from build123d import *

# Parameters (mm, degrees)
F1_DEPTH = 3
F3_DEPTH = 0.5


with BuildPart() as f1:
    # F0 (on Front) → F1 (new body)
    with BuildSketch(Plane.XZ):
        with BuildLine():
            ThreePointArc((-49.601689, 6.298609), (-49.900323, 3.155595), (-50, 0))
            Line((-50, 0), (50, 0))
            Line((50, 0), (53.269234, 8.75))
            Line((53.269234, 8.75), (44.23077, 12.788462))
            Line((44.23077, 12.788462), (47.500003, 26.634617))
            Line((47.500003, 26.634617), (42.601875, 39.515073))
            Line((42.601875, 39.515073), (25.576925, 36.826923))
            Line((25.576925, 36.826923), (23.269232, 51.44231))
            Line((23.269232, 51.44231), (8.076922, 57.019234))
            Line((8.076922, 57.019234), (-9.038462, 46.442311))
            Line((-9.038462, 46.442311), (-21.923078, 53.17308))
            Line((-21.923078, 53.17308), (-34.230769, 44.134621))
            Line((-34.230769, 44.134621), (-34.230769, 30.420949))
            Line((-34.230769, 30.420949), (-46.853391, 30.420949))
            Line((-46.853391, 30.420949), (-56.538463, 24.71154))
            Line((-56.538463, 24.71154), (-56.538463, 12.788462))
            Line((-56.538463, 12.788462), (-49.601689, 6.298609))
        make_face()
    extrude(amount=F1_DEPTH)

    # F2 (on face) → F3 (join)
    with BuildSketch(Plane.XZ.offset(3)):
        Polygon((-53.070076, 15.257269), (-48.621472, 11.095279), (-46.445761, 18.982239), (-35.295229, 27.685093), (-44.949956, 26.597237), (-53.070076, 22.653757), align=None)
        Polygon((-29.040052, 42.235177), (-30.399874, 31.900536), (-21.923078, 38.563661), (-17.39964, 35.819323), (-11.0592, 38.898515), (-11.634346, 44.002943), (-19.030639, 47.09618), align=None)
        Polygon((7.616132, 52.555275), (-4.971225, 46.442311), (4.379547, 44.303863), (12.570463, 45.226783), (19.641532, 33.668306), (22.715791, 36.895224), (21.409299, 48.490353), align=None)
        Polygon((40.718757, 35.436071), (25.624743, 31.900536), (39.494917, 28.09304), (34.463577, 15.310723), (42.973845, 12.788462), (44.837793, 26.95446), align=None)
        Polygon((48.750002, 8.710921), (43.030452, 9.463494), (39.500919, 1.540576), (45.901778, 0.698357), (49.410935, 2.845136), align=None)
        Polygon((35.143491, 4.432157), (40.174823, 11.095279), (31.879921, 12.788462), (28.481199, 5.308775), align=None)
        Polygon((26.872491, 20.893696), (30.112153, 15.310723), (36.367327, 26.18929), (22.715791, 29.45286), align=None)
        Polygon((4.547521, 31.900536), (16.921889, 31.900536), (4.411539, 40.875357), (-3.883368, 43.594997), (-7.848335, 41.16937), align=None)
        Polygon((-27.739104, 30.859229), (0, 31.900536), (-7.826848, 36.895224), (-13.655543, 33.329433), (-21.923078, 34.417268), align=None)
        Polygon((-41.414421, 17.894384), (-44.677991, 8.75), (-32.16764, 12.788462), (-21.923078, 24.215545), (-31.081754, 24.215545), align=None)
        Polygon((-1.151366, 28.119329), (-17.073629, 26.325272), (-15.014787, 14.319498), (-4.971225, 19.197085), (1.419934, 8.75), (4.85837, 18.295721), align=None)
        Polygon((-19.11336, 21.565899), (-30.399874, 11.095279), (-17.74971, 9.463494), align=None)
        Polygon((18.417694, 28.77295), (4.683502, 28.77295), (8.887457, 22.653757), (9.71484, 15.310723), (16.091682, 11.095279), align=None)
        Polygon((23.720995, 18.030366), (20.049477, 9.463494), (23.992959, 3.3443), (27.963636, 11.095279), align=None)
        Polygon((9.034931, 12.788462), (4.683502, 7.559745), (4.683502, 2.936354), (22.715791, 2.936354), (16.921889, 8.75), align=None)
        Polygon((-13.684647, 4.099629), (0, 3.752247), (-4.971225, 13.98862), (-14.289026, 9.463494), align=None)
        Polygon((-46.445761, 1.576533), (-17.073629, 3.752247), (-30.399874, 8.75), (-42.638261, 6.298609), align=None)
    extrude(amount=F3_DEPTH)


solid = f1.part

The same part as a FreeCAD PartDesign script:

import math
import FreeCAD as App
import Part
import Sketcher
Q = App.Units.Quantity


def add_polygon(sketch, points):
    """Adds a closed chain of lines whose ends are joined by coincident constraints."""
    first, n = sketch.GeometryCount, len(points)
    for a, b in zip(points, points[1:] + points[:1]):
        sketch.addGeometry(Part.LineSegment(App.Vector(*a, 0), App.Vector(*b, 0)), False)
    for i in range(n):
        sketch.addConstraint(Sketcher.Constraint("Coincident", first + i, 2, first + (i + 1) % n, 1))

doc = App.newDocument("Part")
params = doc.addObject("Spreadsheet::Sheet", "Params")
for row, (alias, value) in enumerate([
    ("sketch1_width", "100 mm"),
    ("pad1_length", "3 mm"),
    ("pad2_length", "0.5 mm"),
], start=1):
    params.set(f"A{row}", alias)
    params.set(f"B{row}", "=" + value)
    params.setAlias(f"B{row}", alias)

body = doc.addObject("PartDesign::Body", "Body")

sketch1 = body.newObject("Sketcher::SketchObject", "Sketch")
sketch1.AttachmentSupport = (doc.getObject("XZ_Plane"), [""])
sketch1.MapMode = "FlatFace"
sketch1.addGeometry(Part.ArcOfCircle(Part.Circle(App.Vector(-0.000009, 0.000003, 0), App.Vector(0, 0, 1), 49.999991), math.radians(172.7631), math.radians(180.000003)), False)
sketch1.addGeometry(Part.LineSegment(App.Vector(-50, 0, 0), App.Vector(50, 0, 0)), False)
sketch1.addGeometry(Part.LineSegment(App.Vector(50, 0, 0), App.Vector(53.269234, 8.75, 0)), False)
sketch1.addGeometry(Part.LineSegment(App.Vector(53.269234, 8.75, 0), App.Vector(44.23077, 12.788462, 0)), False)
sketch1.addGeometry(Part.LineSegment(App.Vector(44.23077, 12.788462, 0), App.Vector(47.500003, 26.634617, 0)), False)
sketch1.addGeometry(Part.LineSegment(App.Vector(47.500003, 26.634617, 0), App.Vector(42.601875, 39.515073, 0)), False)
sketch1.addGeometry(Part.LineSegment(App.Vector(42.601875, 39.515073, 0), App.Vector(25.576925, 36.826923, 0)), False)
sketch1.addGeometry(Part.LineSegment(App.Vector(25.576925, 36.826923, 0), App.Vector(23.269232, 51.44231, 0)), False)
sketch1.addGeometry(Part.LineSegment(App.Vector(23.269232, 51.44231, 0), App.Vector(8.076922, 57.019234, 0)), False)
sketch1.addGeometry(Part.LineSegment(App.Vector(8.076922, 57.019234, 0), App.Vector(-9.038462, 46.442311, 0)), False)
sketch1.addGeometry(Part.LineSegment(App.Vector(-9.038462, 46.442311, 0), App.Vector(-21.923078, 53.17308, 0)), False)
sketch1.addGeometry(Part.LineSegment(App.Vector(-21.923078, 53.17308, 0), App.Vector(-34.230769, 44.134621, 0)), False)
sketch1.addGeometry(Part.LineSegment(App.Vector(-34.230769, 44.134621, 0), App.Vector(-34.230769, 30.420949, 0)), False)
sketch1.addGeometry(Part.LineSegment(App.Vector(-34.230769, 30.420949, 0), App.Vector(-46.853391, 30.420949, 0)), False)
sketch1.addGeometry(Part.LineSegment(App.Vector(-46.853391, 30.420949, 0), App.Vector(-56.538463, 24.71154, 0)), False)
sketch1.addGeometry(Part.LineSegment(App.Vector(-56.538463, 24.71154, 0), App.Vector(-56.538463, 12.788462, 0)), False)
sketch1.addGeometry(Part.LineSegment(App.Vector(-56.538463, 12.788462, 0), App.Vector(-49.601689, 6.298609, 0)), False)
sketch1.addConstraint(Sketcher.Constraint("Coincident", 0, 2, 1, 1))
sketch1.addConstraint(Sketcher.Constraint("Coincident", 1, 2, 2, 1))
sketch1.addConstraint(Sketcher.Constraint("Coincident", 2, 2, 3, 1))
sketch1.addConstraint(Sketcher.Constraint("Coincident", 3, 2, 4, 1))
sketch1.addConstraint(Sketcher.Constraint("Coincident", 4, 2, 5, 1))
sketch1.addConstraint(Sketcher.Constraint("Coincident", 5, 2, 6, 1))
sketch1.addConstraint(Sketcher.Constraint("Coincident", 6, 2, 7, 1))
sketch1.addConstraint(Sketcher.Constraint("Coincident", 7, 2, 8, 1))
sketch1.addConstraint(Sketcher.Constraint("Coincident", 8, 2, 9, 1))
sketch1.addConstraint(Sketcher.Constraint("Coincident", 9, 2, 10, 1))
sketch1.addConstraint(Sketcher.Constraint("Coincident", 10, 2, 11, 1))
sketch1.addConstraint(Sketcher.Constraint("Coincident", 11, 2, 12, 1))
sketch1.addConstraint(Sketcher.Constraint("Coincident", 12, 2, 13, 1))
sketch1.addConstraint(Sketcher.Constraint("Coincident", 13, 2, 14, 1))
sketch1.addConstraint(Sketcher.Constraint("Coincident", 14, 2, 15, 1))
sketch1.addConstraint(Sketcher.Constraint("Coincident", 15, 2, 16, 1))
sketch1.addConstraint(Sketcher.Constraint("Coincident", 16, 2, 0, 1))
sketch1.addConstraint(Sketcher.Constraint("Horizontal", 1))
sketch1.addConstraint(Sketcher.Constraint("Vertical", 12))
sketch1.addConstraint(Sketcher.Constraint("Horizontal", 13))
sketch1.addConstraint(Sketcher.Constraint("Vertical", 15))
sketch1.addConstraint(Sketcher.Constraint("Coincident", 0, 3, -1, 1))
sketch1.addConstraint(Sketcher.Constraint("Symmetric", 0, 2, 1, 2, -1, 1))
sketch1.addConstraint(Sketcher.Constraint("Perpendicular", 6, 7))
sketch1.addConstraint(Sketcher.Constraint("Horizontal", 3, 2, 15, 2))
sketch1.addConstraint(Sketcher.Constraint("DistanceX", 1, 1, 1, 2, Q("100 mm")))
sketch1.addConstraint(Sketcher.Constraint("DistanceX", 7, 2, 2, 2, Q("30.000002 mm")))
sketch1.addConstraint(Sketcher.Constraint("DistanceY", 9, 2, 7, 2, Q("4.999999 mm")))
sketch1.addConstraint(Sketcher.Constraint("DistanceX", 10, 2, 8, 2, Q("30 mm")))
sketch1.addConstraint(Sketcher.Constraint("DistanceY", -1, 1, 2, 2, Q("8.75 mm")))
sketch1.addConstraint(Sketcher.Constraint("Distance", 2, Q("9.340792 mm")))
sketch1.addConstraint(Sketcher.Constraint("Distance", 5, Q("13.780341 mm")))
sketch1.addConstraint(Sketcher.Constraint("Distance", 7, Q("14.796452 mm")))
sketch1.addConstraint(Sketcher.Constraint("DistanceX", 13, 2, 13, 1, Q("12.622622 mm")))
sketch1.addConstraint(Sketcher.Constraint("DistanceY", 12, 2, 12, 1, Q("13.713672 mm")))
sketch1.addConstraint(Sketcher.Constraint("DistanceY", 15, 2, 15, 1, Q("11.923078 mm")))
sketch1.addConstraint(Sketcher.Constraint("DistanceX", -1, 1, 3, 2, Q("44.23077 mm")))
sketch1.addConstraint(Sketcher.Constraint("DistanceY", -1, 1, 7, 2, Q("51.44231 mm")))
sketch1.addConstraint(Sketcher.Constraint("DistanceX", 10, 2, -1, 1, Q("21.923078 mm")))
sketch1.addConstraint(Sketcher.Constraint("DistanceY", -1, 1, 10, 2, Q("53.17308 mm")))
sketch1.addConstraint(Sketcher.Constraint("DistanceX", 11, 2, -1, 1, Q("34.230769 mm")))
sketch1.addConstraint(Sketcher.Constraint("DistanceY", -1, 1, 11, 2, Q("44.134621 mm")))
sketch1.addConstraint(Sketcher.Constraint("DistanceY", -1, 1, 14, 2, Q("24.71154 mm")))
sketch1.addConstraint(Sketcher.Constraint("DistanceX", 16, 2, -1, 1, Q("49.601689 mm")))
sketch1.addConstraint(Sketcher.Constraint("DistanceX", 4, 2, 2, 2, Q("5.769231 mm")))
sketch1.addConstraint(Sketcher.Constraint("DistanceY", 3, 2, 5, 2, Q("26.726611 mm")))
sketch1.addConstraint(Sketcher.Constraint("DistanceX", 5, 2, 2, 2, Q("10.667359 mm")))
sketch1.addConstraint(Sketcher.Constraint("DistanceY", 6, 2, 8, 2, Q("20.192311 mm")))
sketch1.addConstraint(Sketcher.Constraint("DistanceX", 13, 2, 9, 2, Q("37.814929 mm")))
sketch1.addConstraint(Sketcher.Constraint("DistanceX", 14, 2, 13, 2, Q("9.685072 mm")))
sketch1.setExpression("Constraints[25]", "Params.sketch1_width")
pad1 = body.newObject("PartDesign::Pad", "Pad")
pad1.Profile = sketch1
pad1.setExpression("Length", "Params.pad1_length")

sketch2 = body.newObject("Sketcher::SketchObject", "Sketch001")
sketch2.AttachmentSupport = (doc.getObject("XZ_Plane"), [""])
sketch2.MapMode = "FlatFace"
sketch2.AttachmentOffset = App.Placement(App.Vector(0, 0, 3), App.Rotation())
add_polygon(sketch2, [(-53.070076, 15.257269), (-48.621472, 11.095279), (-46.445761, 18.982239), (-35.295229, 27.685093), (-44.949956, 26.597237), (-53.070076, 22.653757)])
add_polygon(sketch2, [(-29.040052, 42.235177), (-30.399874, 31.900536), (-21.923078, 38.563661), (-17.39964, 35.819323), (-11.0592, 38.898515), (-11.634346, 44.002943), (-19.030639, 47.09618)])
add_polygon(sketch2, [(7.616132, 52.555275), (-4.971225, 46.442311), (4.379547, 44.303863), (12.570463, 45.226783), (19.641532, 33.668306), (22.715791, 36.895224), (21.409299, 48.490353)])
add_polygon(sketch2, [(40.718757, 35.436071), (25.624743, 31.900536), (39.494917, 28.09304), (34.463577, 15.310723), (42.973845, 12.788462), (44.837793, 26.95446)])
add_polygon(sketch2, [(48.750002, 8.710921), (43.030452, 9.463494), (39.500919, 1.540576), (45.901778, 0.698357), (49.410935, 2.845136)])
add_polygon(sketch2, [(35.143491, 4.432157), (40.174823, 11.095279), (31.879921, 12.788462), (28.481199, 5.308775)])
add_polygon(sketch2, [(26.872491, 20.893696), (30.112153, 15.310723), (36.367327, 26.18929), (22.715791, 29.45286)])
add_polygon(sketch2, [(4.547521, 31.900536), (16.921889, 31.900536), (4.411539, 40.875357), (-3.883368, 43.594997), (-7.848335, 41.16937)])
add_polygon(sketch2, [(-27.739104, 30.859229), (0, 31.900536), (-7.826848, 36.895224), (-13.655543, 33.329433), (-21.923078, 34.417268)])
add_polygon(sketch2, [(-41.414421, 17.894384), (-44.677991, 8.75), (-32.16764, 12.788462), (-21.923078, 24.215545), (-31.081754, 24.215545)])
add_polygon(sketch2, [(-1.151366, 28.119329), (-17.073629, 26.325272), (-15.014787, 14.319498), (-4.971225, 19.197085), (1.419934, 8.75), (4.85837, 18.295721)])
add_polygon(sketch2, [(-19.11336, 21.565899), (-30.399874, 11.095279), (-17.74971, 9.463494)])
add_polygon(sketch2, [(18.417694, 28.77295), (4.683502, 28.77295), (8.887457, 22.653757), (9.71484, 15.310723), (16.091682, 11.095279)])
add_polygon(sketch2, [(23.720995, 18.030366), (20.049477, 9.463494), (23.992959, 3.3443), (27.963636, 11.095279)])
add_polygon(sketch2, [(9.034931, 12.788462), (4.683502, 7.559745), (4.683502, 2.936354), (22.715791, 2.936354), (16.921889, 8.75)])
add_polygon(sketch2, [(-13.684647, 4.099629), (0, 3.752247), (-4.971225, 13.98862), (-14.289026, 9.463494)])
add_polygon(sketch2, [(-46.445761, 1.576533), (-17.073629, 3.752247), (-30.399874, 8.75), (-42.638261, 6.298609)])
sketch2.addConstraint(Sketcher.Constraint("Vertical", 5))
sketch2.addConstraint(Sketcher.Constraint("Horizontal", 39))
sketch2.addConstraint(Sketcher.Constraint("Horizontal", 52))
sketch2.addConstraint(Sketcher.Constraint("Horizontal", 63))
sketch2.addConstraint(Sketcher.Constraint("Vertical", 73))
sketch2.addConstraint(Sketcher.Constraint("Horizontal", 74))
sketch2.addConstraint(Sketcher.Constraint("PointOnObject", 44, 2, -2))
sketch2.addConstraint(Sketcher.Constraint("PointOnObject", 77, 2, -2))
sketch2.addConstraint(Sketcher.Constraint("DistanceY", -1, 1, 49, 2, Q("8.75 mm")))
sketch2.addConstraint(Sketcher.Constraint("DistanceY", -1, 1, 57, 2, Q("8.75 mm")))
sketch2.addConstraint(Sketcher.Constraint("DistanceY", -1, 1, 75, 2, Q("8.75 mm")))
sketch2.addConstraint(Sketcher.Constraint("DistanceY", -1, 1, 82, 2, Q("8.75 mm")))
sketch2.addConstraint(Sketcher.Constraint("Distance", 43, Q("15.478001 mm")))
sketch2.addConstraint(Sketcher.Constraint("Distance", 18, Q("11.668502 mm")))
sketch2.addConstraint(Sketcher.Constraint("Distance", 24, Q("14.2881 mm")))
sketch2.addConstraint(Sketcher.Constraint("Distance", 25, Q("9.428901 mm")))
sketch2.addConstraint(Sketcher.Constraint("Distance", 65, Q("7.3895 mm")))
sketch2.addConstraint(Sketcher.Constraint("DistanceX", 74, 1, 74, 2, Q("18.032289 mm")))
sketch2.addConstraint(Sketcher.Constraint("DistanceY", 73, 2, 73, 1, Q("4.623391 mm")))
sketch2.addConstraint(Sketcher.Constraint("DistanceX", 9, 2, -1, 1, Q("11.0592 mm")))
sketch2.addConstraint(Sketcher.Constraint("DistanceX", -1, 1, 18, 2, Q("21.409299 mm")))
sketch2.addConstraint(Sketcher.Constraint("DistanceX", -1, 1, 33, 2, Q("28.481199 mm")))
sketch2.addConstraint(Sketcher.Constraint("DistanceY", -1, 1, 62, 2, Q("21.565899 mm")))
sketch2.addConstraint(Sketcher.Constraint("DistanceX", -1, 1, 63, 2, Q("4.683502 mm")))
sketch2.addConstraint(Sketcher.Constraint("DistanceY", -1, 1, 69, 2, Q("3.3443 mm")))
sketch2.addConstraint(Sketcher.Constraint("DistanceX", -1, 1, 72, 2, Q("4.683502 mm")))
sketch2.addConstraint(Sketcher.Constraint("Distance", 0, Q("6.091981 mm")))
sketch2.addConstraint(Sketcher.Constraint("Distance", 3, Q("9.715821 mm")))
sketch2.addConstraint(Sketcher.Constraint("Distance", 6, Q("10.423719 mm")))
sketch2.addConstraint(Sketcher.Constraint("Distance", 8, Q("5.29083 mm")))
sketch2.addConstraint(Sketcher.Constraint("Distance", 9, Q("7.048589 mm")))
sketch2.addConstraint(Sketcher.Constraint("Distance", 10, Q("5.136728 mm")))
sketch2.addConstraint(Sketcher.Constraint("Distance", 11, Q("8.017061 mm")))
sketch2.addConstraint(Sketcher.Constraint("Distance", 12, Q("11.12734 mm")))
sketch2.addConstraint(Sketcher.Constraint("Distance", 13, Q("13.993209 mm")))
sketch2.addConstraint(Sketcher.Constraint("Distance", 14, Q("9.592179 mm")))
sketch2.addConstraint(Sketcher.Constraint("Distance", 16, Q("13.549849 mm")))
sketch2.addConstraint(Sketcher.Constraint("Distance", 21, Q("14.38328 mm")))
sketch2.addConstraint(Sketcher.Constraint("Distance", 26, Q("5.768849 mm")))
sketch2.addConstraint(Sketcher.Constraint("Distance", 28, Q("6.45603 mm")))
sketch2.addConstraint(Sketcher.Constraint("Distance", 29, Q("4.113738 mm")))
sketch2.addConstraint(Sketcher.Constraint("Distance", 31, Q("8.349341 mm")))
sketch2.addConstraint(Sketcher.Constraint("Distance", 36, Q("12.548722 mm")))
sketch2.addConstraint(Sketcher.Constraint("Distance", 40, Q("15.396632 mm")))
sketch2.addConstraint(Sketcher.Constraint("Distance", 41, Q("8.729371 mm")))
sketch2.addConstraint(Sketcher.Constraint("Distance", 42, Q("4.648078 mm")))
sketch2.addConstraint(Sketcher.Constraint("Distance", 48, Q("6.81805 mm")))
sketch2.addConstraint(Sketcher.Constraint("Distance", 50, Q("13.146028 mm")))
sketch2.addConstraint(Sketcher.Constraint("Distance", 57, Q("12.246979 mm")))
sketch2.addConstraint(Sketcher.Constraint("Distance", 60, Q("15.395431 mm")))
sketch2.addConstraint(Sketcher.Constraint("Distance", 66, Q("7.644219 mm")))
sketch2.addConstraint(Sketcher.Constraint("Distance", 67, Q("17.830042 mm")))
sketch2.addConstraint(Sketcher.Constraint("Distance", 68, Q("9.32048 mm")))
sketch2.addConstraint(Sketcher.Constraint("Distance", 71, Q("8.12991 mm")))
sketch2.addConstraint(Sketcher.Constraint("Distance", 72, Q("6.80253 mm")))
sketch2.addConstraint(Sketcher.Constraint("Distance", 78, Q("11.379649 mm")))
sketch2.addConstraint(Sketcher.Constraint("Distance", 82, Q("14.23258 mm")))
sketch2.addConstraint(Sketcher.Constraint("DistanceX", 39, 1, 39, 2, Q("12.374368 mm")))
sketch2.addConstraint(Sketcher.Constraint("DistanceX", 52, 2, 52, 1, Q("9.158676 mm")))
sketch2.addConstraint(Sketcher.Constraint("DistanceX", 63, 2, 63, 1, Q("13.734192 mm")))
sketch2.addConstraint(Sketcher.Constraint("DistanceY", 5, 2, 5, 1, Q("7.396488 mm")))
sketch2.addConstraint(Sketcher.Constraint("DistanceX", 0, 2, -1, 1, Q("48.621472 mm")))
sketch2.addConstraint(Sketcher.Constraint("DistanceY", -1, 1, 0, 2, Q("11.095279 mm")))
sketch2.addConstraint(Sketcher.Constraint("DistanceX", 1, 2, -1, 1, Q("46.445761 mm")))
sketch2.addConstraint(Sketcher.Constraint("DistanceY", -1, 1, 1, 2, Q("18.982239 mm")))
sketch2.addConstraint(Sketcher.Constraint("DistanceX", 2, 2, -1, 1, Q("35.295229 mm")))
sketch2.addConstraint(Sketcher.Constraint("DistanceY", -1, 1, 5, 2, Q("15.257269 mm")))
sketch2.addConstraint(Sketcher.Constraint("DistanceX", 7, 2, -1, 1, Q("21.923078 mm")))
sketch2.addConstraint(Sketcher.Constraint("DistanceY", -1, 1, 7, 2, Q("38.563661 mm")))
sketch2.addConstraint(Sketcher.Constraint("DistanceX", 8, 2, -1, 1, Q("17.39964 mm")))
sketch2.addConstraint(Sketcher.Constraint("DistanceX", 11, 2, -1, 1, Q("19.030639 mm")))
sketch2.addConstraint(Sketcher.Constraint("DistanceY", -1, 1, 11, 2, Q("47.09618 mm")))
sketch2.addConstraint(Sketcher.Constraint("DistanceX", 12, 2, -1, 1, Q("29.040052 mm")))
sketch2.addConstraint(Sketcher.Constraint("DistanceY", -1, 1, 13, 2, Q("46.442311 mm")))
sketch2.addConstraint(Sketcher.Constraint("DistanceX", -1, 1, 17, 2, Q("22.715791 mm")))
sketch2.addConstraint(Sketcher.Constraint("DistanceY", -1, 1, 21, 2, Q("28.09304 mm")))
sketch2.addConstraint(Sketcher.Constraint("DistanceY", -1, 1, 24, 2, Q("26.95446 mm")))
sketch2.addConstraint(Sketcher.Constraint("DistanceY", -1, 1, 25, 2, Q("35.436071 mm")))
sketch2.addConstraint(Sketcher.Constraint("DistanceX", -1, 1, 26, 2, Q("43.030452 mm")))
sketch2.addConstraint(Sketcher.Constraint("DistanceX", -1, 1, 27, 2, Q("39.500919 mm")))
sketch2.addConstraint(Sketcher.Constraint("DistanceY", -1, 1, 30, 2, Q("8.710921 mm")))
sketch2.addConstraint(Sketcher.Constraint("DistanceY", -1, 1, 31, 2, Q("11.095279 mm")))
sketch2.addConstraint(Sketcher.Constraint("DistanceX", -1, 1, 32, 2, Q("31.879921 mm")))
sketch2.addConstraint(Sketcher.Constraint("DistanceX", -1, 1, 34, 2, Q("35.143491 mm")))
sketch2.addConstraint(Sketcher.Constraint("DistanceY", -1, 1, 36, 2, Q("26.18929 mm")))
sketch2.addConstraint(Sketcher.Constraint("DistanceX", -1, 1, 37, 2, Q("22.715791 mm")))
sketch2.addConstraint(Sketcher.Constraint("DistanceY", -1, 1, 37, 2, Q("29.45286 mm")))
sketch2.addConstraint(Sketcher.Constraint("DistanceX", -1, 1, 38, 2, Q("26.872491 mm")))
sketch2.addConstraint(Sketcher.Constraint("DistanceX", -1, 1, 39, 2, Q("16.921889 mm")))
sketch2.addConstraint(Sketcher.Constraint("DistanceX", -1, 1, 40, 2, Q("4.411539 mm")))
sketch2.addConstraint(Sketcher.Constraint("DistanceY", -1, 1, 42, 2, Q("41.16937 mm")))
sketch2.addConstraint(Sketcher.Constraint("DistanceX", 47, 2, -1, 1, Q("21.923078 mm")))
sketch2.addConstraint(Sketcher.Constraint("DistanceY", -1, 1, 48, 2, Q("30.859229 mm")))
sketch2.addConstraint(Sketcher.Constraint("DistanceX", 49, 2, -1, 1, Q("44.677991 mm")))
sketch2.addConstraint(Sketcher.Constraint("DistanceX", 50, 2, -1, 1, Q("32.16764 mm")))
sketch2.addConstraint(Sketcher.Constraint("DistanceX", 51, 2, -1, 1, Q("21.923078 mm")))
sketch2.addConstraint(Sketcher.Constraint("DistanceX", 53, 2, -1, 1, Q("41.414421 mm")))
sketch2.addConstraint(Sketcher.Constraint("DistanceX", 54, 2, -1, 1, Q("17.073629 mm")))
sketch2.addConstraint(Sketcher.Constraint("DistanceY", -1, 1, 54, 2, Q("26.325272 mm")))
sketch2.addConstraint(Sketcher.Constraint("DistanceX", -1, 1, 58, 2, Q("4.85837 mm")))
sketch2.addConstraint(Sketcher.Constraint("DistanceY", -1, 1, 58, 2, Q("18.295721 mm")))
sketch2.addConstraint(Sketcher.Constraint("DistanceY", -1, 1, 59, 2, Q("28.119329 mm")))
sketch2.addConstraint(Sketcher.Constraint("DistanceY", -1, 1, 60, 2, Q("11.095279 mm")))
sketch2.addConstraint(Sketcher.Constraint("DistanceX", 61, 2, -1, 1, Q("17.74971 mm")))
sketch2.addConstraint(Sketcher.Constraint("DistanceX", 62, 2, -1, 1, Q("19.11336 mm")))
sketch2.addConstraint(Sketcher.Constraint("DistanceY", -1, 1, 63, 2, Q("28.77295 mm")))
sketch2.addConstraint(Sketcher.Constraint("DistanceX", -1, 1, 65, 2, Q("9.71484 mm")))
sketch2.addConstraint(Sketcher.Constraint("DistanceX", -1, 1, 66, 2, Q("16.091682 mm")))
sketch2.addConstraint(Sketcher.Constraint("DistanceX", -1, 1, 69, 2, Q("23.992959 mm")))
sketch2.addConstraint(Sketcher.Constraint("DistanceY", -1, 1, 70, 2, Q("11.095279 mm")))
sketch2.addConstraint(Sketcher.Constraint("DistanceX", -1, 1, 75, 2, Q("16.921889 mm")))
sketch2.addConstraint(Sketcher.Constraint("DistanceX", -1, 1, 76, 2, Q("9.034931 mm")))
sketch2.addConstraint(Sketcher.Constraint("DistanceY", -1, 1, 78, 2, Q("13.98862 mm")))
sketch2.addConstraint(Sketcher.Constraint("DistanceY", -1, 1, 80, 2, Q("4.099629 mm")))
sketch2.addConstraint(Sketcher.Constraint("DistanceX", 81, 2, -1, 1, Q("17.073629 mm")))
sketch2.addConstraint(Sketcher.Constraint("DistanceX", 83, 2, -1, 1, Q("42.638261 mm")))
sketch2.addConstraint(Sketcher.Constraint("DistanceY", -1, 1, 83, 2, Q("6.298609 mm")))
sketch2.addConstraint(Sketcher.Constraint("DistanceX", 84, 2, -1, 1, Q("46.445761 mm")))
sketch2.addConstraint(Sketcher.Constraint("Distance", 2, Q("14.144753 mm")))
sketch2.addConstraint(Sketcher.Constraint("Distance", 4, Q("9.027036 mm")))
sketch2.addConstraint(Sketcher.Constraint("Distance", 7, Q("10.782083 mm")))
sketch2.addConstraint(Sketcher.Constraint("Distance", 15, Q("8.242747 mm")))
sketch2.addConstraint(Sketcher.Constraint("Distance", 17, Q("4.456912 mm")))
sketch2.addConstraint(Sketcher.Constraint("Distance", 19, Q("14.379675 mm")))
sketch2.addConstraint(Sketcher.Constraint("Distance", 20, Q("15.502557 mm")))
sketch2.addConstraint(Sketcher.Constraint("Distance", 22, Q("13.736885 mm")))
sketch2.addConstraint(Sketcher.Constraint("Distance", 23, Q("8.876174 mm")))
sketch2.addConstraint(Sketcher.Constraint("Distance", 27, Q("8.673536 mm")))
sketch2.addConstraint(Sketcher.Constraint("Distance", 30, Q("5.902903 mm")))
sketch2.addConstraint(Sketcher.Constraint("Distance", 32, Q("8.465948 mm")))
sketch2.addConstraint(Sketcher.Constraint("Distance", 33, Q("8.215658 mm")))
sketch2.addConstraint(Sketcher.Constraint("Distance", 34, Q("6.719717 mm")))
sketch2.addConstraint(Sketcher.Constraint("Distance", 35, Q("6.454843 mm")))
sketch2.addConstraint(Sketcher.Constraint("Distance", 37, Q("14.036215 mm")))
sketch2.addConstraint(Sketcher.Constraint("Distance", 38, Q("9.515117 mm")))
sketch2.addConstraint(Sketcher.Constraint("Distance", 44, Q("27.758642 mm")))
sketch2.addConstraint(Sketcher.Constraint("Distance", 45, Q("9.284743 mm")))
sketch2.addConstraint(Sketcher.Constraint("Distance", 46, Q("6.832902 mm")))
sketch2.addConstraint(Sketcher.Constraint("Distance", 47, Q("8.338796 mm")))
sketch2.addConstraint(Sketcher.Constraint("Distance", 49, Q("9.709307 mm")))
sketch2.addConstraint(Sketcher.Constraint("Distance", 51, Q("15.346963 mm")))
sketch2.addConstraint(Sketcher.Constraint("Distance", 54, Q("16.023018 mm")))
sketch2.addConstraint(Sketcher.Constraint("Distance", 55, Q("12.181028 mm")))
sketch2.addConstraint(Sketcher.Constraint("Distance", 56, Q("11.165303 mm")))
sketch2.addConstraint(Sketcher.Constraint("Distance", 58, Q("10.146114 mm")))
sketch2.addConstraint(Sketcher.Constraint("Distance", 61, Q("12.754974 mm")))
sketch2.addConstraint(Sketcher.Constraint("Distance", 64, Q("7.424134 mm")))
sketch2.addConstraint(Sketcher.Constraint("Distance", 69, Q("7.279807 mm")))
sketch2.addConstraint(Sketcher.Constraint("Distance", 70, Q("8.708843 mm")))
sketch2.addConstraint(Sketcher.Constraint("Distance", 75, Q("8.207788 mm")))
sketch2.addConstraint(Sketcher.Constraint("Distance", 77, Q("13.689055 mm")))
sketch2.addConstraint(Sketcher.Constraint("Distance", 79, Q("10.358484 mm")))
sketch2.addConstraint(Sketcher.Constraint("Distance", 80, Q("5.397807 mm")))
sketch2.addConstraint(Sketcher.Constraint("Distance", 81, Q("29.452604 mm")))
sketch2.addConstraint(Sketcher.Constraint("Distance", 83, Q("12.481484 mm")))
sketch2.addConstraint(Sketcher.Constraint("DistanceX", 13, 2, -1, 1, Q("4.971225 mm")))
sketch2.addConstraint(Sketcher.Constraint("DistanceX", -1, 1, 14, 2, Q("4.379547 mm")))
sketch2.addConstraint(Sketcher.Constraint("DistanceX", -1, 1, 15, 2, Q("12.570463 mm")))
sketch2.addConstraint(Sketcher.Constraint("DistanceX", -1, 1, 16, 2, Q("19.641532 mm")))
sketch2.addConstraint(Sketcher.Constraint("DistanceX", -1, 1, 20, 2, Q("25.624743 mm")))
sketch2.addConstraint(Sketcher.Constraint("DistanceY", -1, 1, 20, 2, Q("31.900536 mm")))
sketch2.addConstraint(Sketcher.Constraint("DistanceX", -1, 1, 22, 2, Q("34.463577 mm")))
sketch2.addConstraint(Sketcher.Constraint("DistanceY", -1, 1, 26, 2, Q("9.463494 mm")))
sketch2.addConstraint(Sketcher.Constraint("DistanceX", -1, 1, 28, 2, Q("45.901778 mm")))
sketch2.addConstraint(Sketcher.Constraint("DistanceY", -1, 1, 39, 2, Q("31.900536 mm")))
sketch2.addConstraint(Sketcher.Constraint("DistanceY", -1, 1, 44, 2, Q("31.900536 mm")))
sketch2.addConstraint(Sketcher.Constraint("DistanceX", 45, 2, -1, 1, Q("7.826848 mm")))
sketch2.addConstraint(Sketcher.Constraint("DistanceX", 55, 2, -1, 1, Q("15.014787 mm")))
sketch2.addConstraint(Sketcher.Constraint("DistanceX", -1, 1, 68, 2, Q("20.049477 mm")))
sketch2.addConstraint(Sketcher.Constraint("DistanceY", -1, 1, 77, 2, Q("3.752247 mm")))
pad2 = body.newObject("PartDesign::Pad", "Pad001")
pad2.Profile = sketch2
pad2.setExpression("Length", "Params.pad2_length")

doc.recompute()
